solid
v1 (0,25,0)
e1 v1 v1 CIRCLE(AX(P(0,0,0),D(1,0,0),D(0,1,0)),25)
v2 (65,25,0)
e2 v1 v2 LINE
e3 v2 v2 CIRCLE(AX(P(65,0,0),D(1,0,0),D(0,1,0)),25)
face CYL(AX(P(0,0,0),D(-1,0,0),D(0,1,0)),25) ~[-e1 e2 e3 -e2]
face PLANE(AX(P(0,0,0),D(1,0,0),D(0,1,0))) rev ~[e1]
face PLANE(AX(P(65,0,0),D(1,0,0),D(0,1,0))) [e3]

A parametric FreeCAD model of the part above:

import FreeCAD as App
import Part
import Sketcher
Q = App.Units.Quantity

doc = App.newDocument("Part")
body = doc.addObject("PartDesign::Body", "Body")

# Sketch on YZ plane
sketch1 = body.newObject("Sketcher::SketchObject", "Sketch")
sketch1.AttachmentSupport = (doc.getObject("YZ_Plane"), [""])
sketch1.MapMode = "FlatFace"
sketch1.addGeometry(Part.Circle(App.Vector(0, 0, 0), App.Vector(0, 0, 1), 25), False)
sketch1.addConstraint([
    Sketcher.Constraint("Coincident", 0, 3, -1, 1),
    Sketcher.Constraint("Diameter", 0, Q("50 mm")),
])
pad1 = body.newObject("PartDesign::Pad", "Pad")
pad1.Profile = sketch1
pad1.Length = 65

doc.recompute()
